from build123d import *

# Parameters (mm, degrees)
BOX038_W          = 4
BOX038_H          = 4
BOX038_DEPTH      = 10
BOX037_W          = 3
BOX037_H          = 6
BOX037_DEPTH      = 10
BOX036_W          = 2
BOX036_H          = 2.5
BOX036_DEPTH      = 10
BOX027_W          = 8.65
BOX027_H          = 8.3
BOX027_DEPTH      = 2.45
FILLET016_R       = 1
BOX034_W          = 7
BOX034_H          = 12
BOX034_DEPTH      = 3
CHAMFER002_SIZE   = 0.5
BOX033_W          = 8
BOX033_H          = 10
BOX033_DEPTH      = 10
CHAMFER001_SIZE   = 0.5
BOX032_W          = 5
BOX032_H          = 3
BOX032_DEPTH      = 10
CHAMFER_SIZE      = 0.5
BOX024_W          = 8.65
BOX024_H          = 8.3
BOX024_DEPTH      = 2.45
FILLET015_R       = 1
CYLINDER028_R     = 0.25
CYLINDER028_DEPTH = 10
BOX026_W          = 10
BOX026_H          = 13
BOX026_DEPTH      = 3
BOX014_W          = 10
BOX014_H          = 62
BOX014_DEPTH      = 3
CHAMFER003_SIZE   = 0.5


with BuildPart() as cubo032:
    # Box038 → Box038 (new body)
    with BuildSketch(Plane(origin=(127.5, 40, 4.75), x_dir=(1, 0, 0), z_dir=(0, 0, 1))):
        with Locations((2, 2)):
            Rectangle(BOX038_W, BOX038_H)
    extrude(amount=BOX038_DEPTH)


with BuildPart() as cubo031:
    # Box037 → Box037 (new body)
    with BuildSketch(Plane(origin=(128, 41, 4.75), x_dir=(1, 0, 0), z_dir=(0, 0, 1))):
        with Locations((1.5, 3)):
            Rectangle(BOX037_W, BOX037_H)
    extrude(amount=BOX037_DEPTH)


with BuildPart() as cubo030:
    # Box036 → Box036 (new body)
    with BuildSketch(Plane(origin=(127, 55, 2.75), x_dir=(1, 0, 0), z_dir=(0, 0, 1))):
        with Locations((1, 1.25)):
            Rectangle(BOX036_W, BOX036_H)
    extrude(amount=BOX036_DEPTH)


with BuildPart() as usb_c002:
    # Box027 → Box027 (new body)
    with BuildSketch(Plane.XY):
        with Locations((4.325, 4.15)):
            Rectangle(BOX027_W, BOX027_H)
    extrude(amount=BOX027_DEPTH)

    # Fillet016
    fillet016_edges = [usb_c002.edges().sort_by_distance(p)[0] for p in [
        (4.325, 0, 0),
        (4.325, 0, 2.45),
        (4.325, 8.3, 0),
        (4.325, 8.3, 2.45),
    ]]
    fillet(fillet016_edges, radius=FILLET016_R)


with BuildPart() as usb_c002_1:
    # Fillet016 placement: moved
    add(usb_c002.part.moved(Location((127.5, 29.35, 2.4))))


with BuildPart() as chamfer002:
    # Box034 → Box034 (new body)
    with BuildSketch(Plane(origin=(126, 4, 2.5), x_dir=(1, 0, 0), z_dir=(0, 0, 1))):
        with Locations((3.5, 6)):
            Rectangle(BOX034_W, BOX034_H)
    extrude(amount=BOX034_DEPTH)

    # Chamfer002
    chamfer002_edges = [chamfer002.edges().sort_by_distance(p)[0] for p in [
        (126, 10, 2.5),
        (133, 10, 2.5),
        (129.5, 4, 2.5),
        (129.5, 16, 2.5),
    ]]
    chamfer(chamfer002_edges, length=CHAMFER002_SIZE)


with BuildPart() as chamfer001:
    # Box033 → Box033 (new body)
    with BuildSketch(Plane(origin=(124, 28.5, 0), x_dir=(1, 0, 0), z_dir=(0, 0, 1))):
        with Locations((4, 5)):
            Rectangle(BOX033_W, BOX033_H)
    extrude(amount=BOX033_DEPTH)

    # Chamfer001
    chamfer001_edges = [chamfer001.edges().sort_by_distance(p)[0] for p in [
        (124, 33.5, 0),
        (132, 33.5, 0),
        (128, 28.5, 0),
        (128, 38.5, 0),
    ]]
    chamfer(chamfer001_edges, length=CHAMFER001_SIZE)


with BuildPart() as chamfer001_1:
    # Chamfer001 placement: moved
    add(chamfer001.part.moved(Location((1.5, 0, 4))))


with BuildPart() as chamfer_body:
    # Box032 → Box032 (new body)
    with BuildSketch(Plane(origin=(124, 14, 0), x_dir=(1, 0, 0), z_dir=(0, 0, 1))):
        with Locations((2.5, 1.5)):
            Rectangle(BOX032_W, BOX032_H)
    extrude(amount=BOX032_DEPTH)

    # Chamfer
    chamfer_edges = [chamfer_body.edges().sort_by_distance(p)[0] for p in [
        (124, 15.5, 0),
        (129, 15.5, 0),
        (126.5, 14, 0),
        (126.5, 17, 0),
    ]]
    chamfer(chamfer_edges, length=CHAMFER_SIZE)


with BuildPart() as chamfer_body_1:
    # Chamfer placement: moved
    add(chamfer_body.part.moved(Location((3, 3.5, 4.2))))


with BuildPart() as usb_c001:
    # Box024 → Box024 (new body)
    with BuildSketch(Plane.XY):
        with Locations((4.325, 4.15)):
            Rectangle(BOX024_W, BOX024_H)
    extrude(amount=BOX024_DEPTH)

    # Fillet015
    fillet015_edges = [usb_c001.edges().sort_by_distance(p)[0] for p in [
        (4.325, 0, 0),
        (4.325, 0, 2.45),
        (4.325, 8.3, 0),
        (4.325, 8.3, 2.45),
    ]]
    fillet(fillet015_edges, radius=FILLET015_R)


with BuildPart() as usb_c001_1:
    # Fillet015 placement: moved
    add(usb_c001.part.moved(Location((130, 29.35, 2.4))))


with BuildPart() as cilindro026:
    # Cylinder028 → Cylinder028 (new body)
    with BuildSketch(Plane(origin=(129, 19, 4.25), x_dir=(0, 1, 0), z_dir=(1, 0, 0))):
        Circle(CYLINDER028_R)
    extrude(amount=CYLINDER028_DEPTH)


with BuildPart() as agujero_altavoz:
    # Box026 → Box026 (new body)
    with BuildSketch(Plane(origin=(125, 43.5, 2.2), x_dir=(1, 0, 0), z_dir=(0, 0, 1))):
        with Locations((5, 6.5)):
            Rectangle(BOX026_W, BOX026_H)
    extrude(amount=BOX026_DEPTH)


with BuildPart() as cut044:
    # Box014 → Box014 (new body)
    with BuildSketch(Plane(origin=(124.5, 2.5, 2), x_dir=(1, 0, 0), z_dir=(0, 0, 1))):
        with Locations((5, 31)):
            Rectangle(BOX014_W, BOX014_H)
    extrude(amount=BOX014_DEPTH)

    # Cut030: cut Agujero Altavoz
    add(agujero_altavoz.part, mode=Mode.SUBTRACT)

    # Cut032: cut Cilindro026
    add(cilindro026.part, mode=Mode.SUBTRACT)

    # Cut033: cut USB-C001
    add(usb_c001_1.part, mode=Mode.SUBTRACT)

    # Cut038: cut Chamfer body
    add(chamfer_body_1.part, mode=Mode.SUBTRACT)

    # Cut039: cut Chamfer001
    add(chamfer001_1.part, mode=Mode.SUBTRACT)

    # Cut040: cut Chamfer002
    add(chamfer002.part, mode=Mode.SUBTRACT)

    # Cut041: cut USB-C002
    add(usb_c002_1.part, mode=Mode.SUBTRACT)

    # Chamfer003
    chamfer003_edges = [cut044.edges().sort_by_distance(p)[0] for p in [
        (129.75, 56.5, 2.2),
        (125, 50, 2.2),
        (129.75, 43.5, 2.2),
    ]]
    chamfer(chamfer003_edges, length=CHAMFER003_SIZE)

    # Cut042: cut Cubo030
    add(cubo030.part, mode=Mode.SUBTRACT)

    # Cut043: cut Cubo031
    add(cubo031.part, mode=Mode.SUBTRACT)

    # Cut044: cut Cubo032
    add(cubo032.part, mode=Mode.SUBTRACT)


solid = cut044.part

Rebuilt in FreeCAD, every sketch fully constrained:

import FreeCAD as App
import Part
import Sketcher

V = App.Vector


def edges_at(feature, points):
    """Names of the edges that pass closest to the given points."""
    edges = feature.Shape.Edges
    near = lambda p: min(range(len(edges)), key=lambda i: edges[i].distToShape(Part.Vertex(*p))[0])
    return sorted({f"Edge{near(p) + 1}" for p in points})

doc = App.newDocument("Part")
body = doc.addObject("PartDesign::Body", "Body")

sketch1 = body.newObject("Sketcher::SketchObject", "Sketch")
sketch1.AttachmentSupport = (doc.getObject("XY_Plane"), [""])
sketch1.MapMode = "FlatFace"
sketch1.AttachmentOffset = App.Placement(V(0, 0, 4.75), App.Rotation())
sketch1.addGeometry([
    Part.LineSegment(V(127.5, 44, 0), V(127.5, 40, 0)),
    Part.LineSegment(V(127.5, 40, 0), V(131.5, 40, 0)),
    Part.LineSegment(V(131.5, 40, 0), V(131.5, 44, 0)),
    Part.LineSegment(V(131.5, 44, 0), V(127.5, 44, 0)),
], False)
sketch1.addConstraint([
    Sketcher.Constraint("Coincident", 0, 2, 1, 1),
    Sketcher.Constraint("Coincident", 1, 2, 2, 1),
    Sketcher.Constraint("Coincident", 2, 2, 3, 1),
    Sketcher.Constraint("Coincident", 3, 2, 0, 1),
    Sketcher.Constraint("Vertical", 0),
    Sketcher.Constraint("Horizontal", 1),
    Sketcher.Constraint("Vertical", 2),
    Sketcher.Constraint("Horizontal", 3),
    Sketcher.Constraint("Equal", 3, 0),
    Sketcher.Constraint("DistanceX", 1, 1, 1, 2, 4.0),
    Sketcher.Constraint("DistanceY", -1, 1, 0, 2, 40.0),
    Sketcher.Constraint("DistanceX", -1, 1, 0, 2, 127.5),
])
pad1 = body.newObject("PartDesign::Pad", "Pad")
pad1.Profile = sketch1
pad1.Length = 10
body2 = doc.addObject("PartDesign::Body", "Body001")

sketch2 = body2.newObject("Sketcher::SketchObject", "Sketch001")
sketch2.AttachmentSupport = (doc.getObject("XY_Plane001"), [""])
sketch2.MapMode = "FlatFace"
sketch2.AttachmentOffset = App.Placement(V(0, 0, 4.75), App.Rotation())
sketch2.addGeometry([
    Part.LineSegment(V(128, 47, 0), V(128, 41, 0)),
    Part.LineSegment(V(128, 41, 0), V(131, 41, 0)),
    Part.LineSegment(V(131, 41, 0), V(131, 47, 0)),
    Part.LineSegment(V(131, 47, 0), V(128, 47, 0)),
], False)
sketch2.addConstraint([
    Sketcher.Constraint("Coincident", 0, 2, 1, 1),
    Sketcher.Constraint("Coincident", 1, 2, 2, 1),
    Sketcher.Constraint("Coincident", 2, 2, 3, 1),
    Sketcher.Constraint("Coincident", 3, 2, 0, 1),
    Sketcher.Constraint("Vertical", 0),
    Sketcher.Constraint("Horizontal", 1),
    Sketcher.Constraint("Vertical", 2),
    Sketcher.Constraint("Horizontal", 3),
    Sketcher.Constraint("DistanceX", 1, 1, 1, 2, 3.0),
    Sketcher.Constraint("DistanceY", 0, 2, 0, 1, 6.0),
    Sketcher.Constraint("DistanceX", -1, 1, 0, 2, 128.0),
    Sketcher.Constraint("DistanceY", -1, 1, 0, 2, 41.0),
])
pad2 = body2.newObject("PartDesign::Pad", "Pad001")
pad2.Profile = sketch2
pad2.Length = 10
body3 = doc.addObject("PartDesign::Body", "Body002")

sketch3 = body3.newObject("Sketcher::SketchObject", "Sketch002")
sketch3.AttachmentSupport = (doc.getObject("XY_Plane002"), [""])
sketch3.MapMode = "FlatFace"
sketch3.AttachmentOffset = App.Placement(V(0, 0, 2.75), App.Rotation())
sketch3.addGeometry([
    Part.LineSegment(V(127, 57.5, 0), V(127, 55, 0)),
    Part.LineSegment(V(127, 55, 0), V(129, 55, 0)),
    Part.LineSegment(V(129, 55, 0), V(129, 57.5, 0)),
    Part.LineSegment(V(129, 57.5, 0), V(127, 57.5, 0)),
], False)
sketch3.addConstraint([
    Sketcher.Constraint("Coincident", 0, 2, 1, 1),
    Sketcher.Constraint("Coincident", 1, 2, 2, 1),
    Sketcher.Constraint("Coincident", 2, 2, 3, 1),
    Sketcher.Constraint("Coincident", 3, 2, 0, 1),
    Sketcher.Constraint("Vertical", 0),
    Sketcher.Constraint("Horizontal", 1),
    Sketcher.Constraint("Vertical", 2),
    Sketcher.Constraint("Horizontal", 3),
    Sketcher.Constraint("DistanceX", 1, 1, 1, 2, 2.0),
    Sketcher.Constraint("DistanceY", 0, 2, 0, 1, 2.5),
    Sketcher.Constraint("DistanceX", -1, 1, 0, 2, 127.0),
    Sketcher.Constraint("DistanceY", -1, 1, 0, 2, 55.0),
])
pad3 = body3.newObject("PartDesign::Pad", "Pad002")
pad3.Profile = sketch3
pad3.Length = 10
body4 = doc.addObject("PartDesign::Body", "Body003")

sketch4 = body4.newObject("Sketcher::SketchObject", "Sketch003")
sketch4.AttachmentSupport = (doc.getObject("XY_Plane003"), [""])
sketch4.MapMode = "FlatFace"
sketch4.addGeometry([
    Part.LineSegment(V(0, 8, 0), V(0, 0, 0)),
    Part.LineSegment(V(0, 0, 0), V(9, 0, 0)),
    Part.LineSegment(V(9, 0, 0), V(9, 8, 0)),
    Part.LineSegment(V(9, 8, 0), V(0, 8, 0)),
], False)
sketch4.addConstraint([
    Sketcher.Constraint("Coincident", 0, 2, 1, 1),
    Sketcher.Constraint("Coincident", 1, 2, 2, 1),
    Sketcher.Constraint("Coincident", 2, 2, 3, 1),
    Sketcher.Constraint("Coincident", 3, 2, 0, 1),
    Sketcher.Constraint("Vertical", 0),
    Sketcher.Constraint("Horizontal", 1),
    Sketcher.Constraint("Vertical", 2),
    Sketcher.Constraint("Horizontal", 3),
    Sketcher.Constraint("Coincident", 0, 2, -1, 1),
    Sketcher.Constraint("DistanceY", 0, 2, 0, 1, 8.3),
    Sketcher.Constraint("DistanceX", 1, 1, 1, 2, 8.65),
])
pad4 = body4.newObject("PartDesign::Pad", "Pad003")
pad4.Profile = sketch4
pad4.Length = 2.45
doc.recompute()

fillet = body4.newObject("PartDesign::Fillet", "Fillet")
fillet.Base = (pad4, edges_at(pad4, [
    (4.325, 0, 0),
    (4.325, 0, 2.45),
    (4.325, 8.3, 0),
    (4.325, 8.3, 2.45),
]))
fillet.Radius = 1
body5 = doc.addObject("PartDesign::Body", "Body004")
doc.recompute()

body4.Placement = App.Placement(V(127.5, 29.35, 2.4), App.Rotation(V(0, 0, 1), 0))
boolean = body5.newObject("PartDesign::Boolean", "Boolean")
boolean.Type = "Fuse"
boolean.addObjects([body4])
body6 = doc.addObject("PartDesign::Body", "Body005")

sketch5 = body6.newObject("Sketcher::SketchObject", "Sketch004")
sketch5.AttachmentSupport = (doc.getObject("XY_Plane005"), [""])
sketch5.MapMode = "FlatFace"
sketch5.AttachmentOffset = App.Placement(V(0, 0, 2.5), App.Rotation())
sketch5.addGeometry([
    Part.LineSegment(V(126, 16, 0), V(126, 4, 0)),
    Part.LineSegment(V(126, 4, 0), V(133, 4, 0)),
    Part.LineSegment(V(133, 4, 0), V(133, 16, 0)),
    Part.LineSegment(V(133, 16, 0), V(126, 16, 0)),
], False)
sketch5.addConstraint([
    Sketcher.Constraint("Coincident", 0, 2, 1, 1),
    Sketcher.Constraint("Coincident", 1, 2, 2, 1),
    Sketcher.Constraint("Coincident", 2, 2, 3, 1),
    Sketcher.Constraint("Coincident", 3, 2, 0, 1),
    Sketcher.Constraint("Vertical", 0),
    Sketcher.Constraint("Horizontal", 1),
    Sketcher.Constraint("Vertical", 2),
    Sketcher.Constraint("Horizontal", 3),
    Sketcher.Constraint("DistanceX", 1, 1, 1, 2, 7.0),
    Sketcher.Constraint("DistanceY", 0, 2, 0, 1, 12.0),
    Sketcher.Constraint("DistanceX", -1, 1, 0, 2, 126.0),
    Sketcher.Constraint("DistanceY", -1, 1, 0, 2, 4.0),
])
pad5 = body6.newObject("PartDesign::Pad", "Pad004")
pad5.Profile = sketch5
pad5.Length = 3
doc.recompute()

chamfer = body6.newObject("PartDesign::Chamfer", "Chamfer")
chamfer.Base = (pad5, edges_at(pad5, [
    (126, 10, 2.5),
    (133, 10, 2.5),
    (129.5, 4, 2.5),
    (129.5, 16, 2.5),
]))
chamfer.Size = 0.5
body7 = doc.addObject("PartDesign::Body", "Body006")

sketch6 = body7.newObject("Sketcher::SketchObject", "Sketch005")
sketch6.AttachmentSupport = (doc.getObject("XY_Plane006"), [""])
sketch6.MapMode = "FlatFace"
sketch6.addGeometry([
    Part.LineSegment(V(124, 38, 0), V(124, 28, 0)),
    Part.LineSegment(V(124, 28, 0), V(132, 28, 0)),
    Part.LineSegment(V(132, 28, 0), V(132, 38, 0)),
    Part.LineSegment(V(132, 38, 0), V(124, 38, 0)),
], False)
sketch6.addConstraint([
    Sketcher.Constraint("Coincident", 0, 2, 1, 1),
    Sketcher.Constraint("Coincident", 1, 2, 2, 1),
    Sketcher.Constraint("Coincident", 2, 2, 3, 1),
    Sketcher.Constraint("Coincident", 3, 2, 0, 1),
    Sketcher.Constraint("Vertical", 0),
    Sketcher.Constraint("Horizontal", 1),
    Sketcher.Constraint("Vertical", 2),
    Sketcher.Constraint("Horizontal", 3),
    Sketcher.Constraint("DistanceX", 1, 1, 1, 2, 8.0),
    Sketcher.Constraint("DistanceY", 0, 2, 0, 1, 10.0),
    Sketcher.Constraint("DistanceX", -1, 1, 0, 2, 124.0),
    Sketcher.Constraint("DistanceY", -1, 1, 0, 2, 28.5),
])
pad6 = body7.newObject("PartDesign::Pad", "Pad005")
pad6.Profile = sketch6
pad6.Length = 10
doc.recompute()

chamfer2 = body7.newObject("PartDesign::Chamfer", "Chamfer001")
chamfer2.Base = (pad6, edges_at(pad6, [
    (124, 33.5, 0),
    (132, 33.5, 0),
    (128, 28.5, 0),
    (128, 38.5, 0),
]))
chamfer2.Size = 0.5
body8 = doc.addObject("PartDesign::Body", "Body007")
doc.recompute()

body7.Placement = App.Placement(V(1.5, 0, 4), App.Rotation(V(0, 0, 1), 0))
boolean2 = body8.newObject("PartDesign::Boolean", "Boolean001")
boolean2.Type = "Fuse"
boolean2.addObjects([body7])
body9 = doc.addObject("PartDesign::Body", "Body008")

sketch7 = body9.newObject("Sketcher::SketchObject", "Sketch006")
sketch7.AttachmentSupport = (doc.getObject("XY_Plane008"), [""])
sketch7.MapMode = "FlatFace"
sketch7.addGeometry([
    Part.LineSegment(V(124, 17, 0), V(124, 14, 0)),
    Part.LineSegment(V(124, 14, 0), V(129, 14, 0)),
    Part.LineSegment(V(129, 14, 0), V(129, 17, 0)),
    Part.LineSegment(V(129, 17, 0), V(124, 17, 0)),
], False)
sketch7.addConstraint([
    Sketcher.Constraint("Coincident", 0, 2, 1, 1),
    Sketcher.Constraint("Coincident", 1, 2, 2, 1),
    Sketcher.Constraint("Coincident", 2, 2, 3, 1),
    Sketcher.Constraint("Coincident", 3, 2, 0, 1),
    Sketcher.Constraint("Vertical", 0),
    Sketcher.Constraint("Horizontal", 1),
    Sketcher.Constraint("Vertical", 2),
    Sketcher.Constraint("Horizontal", 3),
    Sketcher.Constraint("DistanceX", 1, 1, 1, 2, 5.0),
    Sketcher.Constraint("DistanceY", 0, 2, 0, 1, 3.0),
    Sketcher.Constraint("DistanceX", -1, 1, 0, 2, 124.0),
    Sketcher.Constraint("DistanceY", -1, 1, 0, 2, 14.0),
])
pad7 = body9.newObject("PartDesign::Pad", "Pad006")
pad7.Profile = sketch7
pad7.Length = 10
doc.recompute()

chamfer3 = body9.newObject("PartDesign::Chamfer", "Chamfer002")
chamfer3.Base = (pad7, edges_at(pad7, [
    (124, 15.5, 0),
    (129, 15.5, 0),
    (126.5, 14, 0),
    (126.5, 17, 0),
]))
chamfer3.Size = 0.5
body10 = doc.addObject("PartDesign::Body", "Body009")
doc.recompute()

body9.Placement = App.Placement(V(3, 3.5, 4.2), App.Rotation(V(0, 0, 1), 0))
boolean3 = body10.newObject("PartDesign::Boolean", "Boolean002")
boolean3.Type = "Fuse"
boolean3.addObjects([body9])
body11 = doc.addObject("PartDesign::Body", "Body010")

sketch8 = body11.newObject("Sketcher::SketchObject", "Sketch007")
sketch8.AttachmentSupport = (doc.getObject("XY_Plane010"), [""])
sketch8.MapMode = "FlatFace"
sketch8.addGeometry([
    Part.LineSegment(V(0, 8, 0), V(0, 0, 0)),
    Part.LineSegment(V(0, 0, 0), V(9, 0, 0)),
    Part.LineSegment(V(9, 0, 0), V(9, 8, 0)),
    Part.LineSegment(V(9, 8, 0), V(0, 8, 0)),
], False)
sketch8.addConstraint([
    Sketcher.Constraint("Coincident", 0, 2, 1, 1),
    Sketcher.Constraint("Coincident", 1, 2, 2, 1),
    Sketcher.Constraint("Coincident", 2, 2, 3, 1),
    Sketcher.Constraint("Coincident", 3, 2, 0, 1),
    Sketcher.Constraint("Vertical", 0),
    Sketcher.Constraint("Horizontal", 1),
    Sketcher.Constraint("Vertical", 2),
    Sketcher.Constraint("Horizontal", 3),
    Sketcher.Constraint("Coincident", 0, 2, -1, 1),
    Sketcher.Constraint("DistanceY", 0, 2, 0, 1, 8.3),
    Sketcher.Constraint("DistanceX", 1, 1, 1, 2, 8.65),
])
pad8 = body11.newObject("PartDesign::Pad", "Pad007")
pad8.Profile = sketch8
pad8.Length = 2.45
doc.recompute()

fillet2 = body11.newObject("PartDesign::Fillet", "Fillet001")
fillet2.Base = (pad8, edges_at(pad8, [
    (4.325, 0, 0),
    (4.325, 0, 2.45),
    (4.325, 8.3, 0),
    (4.325, 8.3, 2.45),
]))
fillet2.Radius = 1
body12 = doc.addObject("PartDesign::Body", "Body011")
doc.recompute()

body11.Placement = App.Placement(V(130, 29.35, 2.4), App.Rotation(V(0, 0, 1), 0))
boolean4 = body12.newObject("PartDesign::Boolean", "Boolean003")
boolean4.Type = "Fuse"
boolean4.addObjects([body11])
body13 = doc.addObject("PartDesign::Body", "Body012")

sketch9 = body13.newObject("Sketcher::SketchObject", "Sketch008")
sketch9.AttachmentSupport = (doc.getObject("YZ_Plane012"), [""])
sketch9.MapMode = "FlatFace"
sketch9.AttachmentOffset = App.Placement(V(0, 0, 129), App.Rotation())
sketch9.addGeometry(Part.Circle(V(19, 4.25, 0), V(0, 0, 1), 0.25), False)
sketch9.addConstraint([
    Sketcher.Constraint("Diameter", 0, 0.5),
    Sketcher.Constraint("DistanceX", -1, 1, 0, 3, 19.0),
    Sketcher.Constraint("DistanceY", -1, 1, 0, 3, 4.25),
])
pad9 = body13.newObject("PartDesign::Pad", "Pad008")
pad9.Profile = sketch9
pad9.Length = 10
body14 = doc.addObject("PartDesign::Body", "Body013")

sketch10 = body14.newObject("Sketcher::SketchObject", "Sketch009")
sketch10.AttachmentSupport = (doc.getObject("XY_Plane013"), [""])
sketch10.MapMode = "FlatFace"
sketch10.AttachmentOffset = App.Placement(V(0, 0, 2.2), App.Rotation())
sketch10.addGeometry([
    Part.LineSegment(V(125, 56, 0), V(125, 44, 0)),
    Part.LineSegment(V(125, 44, 0), V(135, 44, 0)),
    Part.LineSegment(V(135, 44, 0), V(135, 56, 0)),
    Part.LineSegment(V(135, 56, 0), V(125, 56, 0)),
], False)
sketch10.addConstraint([
    Sketcher.Constraint("Coincident", 0, 2, 1, 1),
    Sketcher.Constraint("Coincident", 1, 2, 2, 1),
    Sketcher.Constraint("Coincident", 2, 2, 3, 1),
    Sketcher.Constraint("Coincident", 3, 2, 0, 1),
    Sketcher.Constraint("Vertical", 0),
    Sketcher.Constraint("Horizontal", 1),
    Sketcher.Constraint("Vertical", 2),
    Sketcher.Constraint("Horizontal", 3),
    Sketcher.Constraint("DistanceX", 1, 1, 1, 2, 10.0),
    Sketcher.Constraint("DistanceY", 0, 2, 0, 1, 13.0),
    Sketcher.Constraint("DistanceX", -1, 1, 0, 2, 125.0),
    Sketcher.Constraint("DistanceY", -1, 1, 0, 2, 43.5),
])
pad10 = body14.newObject("PartDesign::Pad", "Pad009")
pad10.Profile = sketch10
pad10.Length = 3
body15 = doc.addObject("PartDesign::Body", "Body014")

sketch11 = body15.newObject("Sketcher::SketchObject", "Sketch010")
sketch11.AttachmentSupport = (doc.getObject("XY_Plane014"), [""])
sketch11.MapMode = "FlatFace"
sketch11.AttachmentOffset = App.Placement(V(0, 0, 2), App.Rotation())
sketch11.addGeometry([
    Part.LineSegment(V(124, 64, 0), V(124, 2, 0)),
    Part.LineSegment(V(124, 2, 0), V(134, 2, 0)),
    Part.LineSegment(V(134, 2, 0), V(134, 64, 0)),
    Part.LineSegment(V(134, 64, 0), V(124, 64, 0)),
], False)
sketch11.addConstraint([
    Sketcher.Constraint("Coincident", 0, 2, 1, 1),
    Sketcher.Constraint("Coincident", 1, 2, 2, 1),
    Sketcher.Constraint("Coincident", 2, 2, 3, 1),
    Sketcher.Constraint("Coincident", 3, 2, 0, 1),
    Sketcher.Constraint("Vertical", 0),
    Sketcher.Constraint("Horizontal", 1),
    Sketcher.Constraint("Vertical", 2),
    Sketcher.Constraint("Horizontal", 3),
    Sketcher.Constraint("DistanceX", 1, 1, 1, 2, 10.0),
    Sketcher.Constraint("DistanceY", 0, 2, 0, 1, 62.0),
    Sketcher.Constraint("DistanceX", -1, 1, 0, 2, 124.5),
    Sketcher.Constraint("DistanceY", -1, 1, 0, 2, 2.5),
])
pad11 = body15.newObject("PartDesign::Pad", "Pad010")
pad11.Profile = sketch11
pad11.Length = 3
doc.recompute()

boolean5 = body15.newObject("PartDesign::Boolean", "Boolean004")
boolean5.Type = "Cut"
boolean5.addObjects([body14])
doc.recompute()

boolean6 = body15.newObject("PartDesign::Boolean", "Boolean005")
boolean6.Type = "Cut"
boolean6.addObjects([body13])
doc.recompute()

boolean7 = body15.newObject("PartDesign::Boolean", "Boolean006")
boolean7.Type = "Cut"
boolean7.addObjects([body12])
doc.recompute()

boolean8 = body15.newObject("PartDesign::Boolean", "Boolean007")
boolean8.Type = "Cut"
boolean8.addObjects([body10])
doc.recompute()

boolean9 = body15.newObject("PartDesign::Boolean", "Boolean008")
boolean9.Type = "Cut"
boolean9.addObjects([body8])
doc.recompute()

boolean10 = body15.newObject("PartDesign::Boolean", "Boolean009")
boolean10.Type = "Cut"
boolean10.addObjects([body6])
doc.recompute()

boolean11 = body15.newObject("PartDesign::Boolean", "Boolean010")
boolean11.Type = "Cut"
boolean11.addObjects([body5])
doc.recompute()

chamfer4 = body15.newObject("PartDesign::Chamfer", "Chamfer003")
chamfer4.Base = (boolean11, edges_at(boolean11, [(129.75, 56.5, 2.2), (125, 50, 2.2), (129.75, 43.5, 2.2)]))
chamfer4.Size = 0.5
doc.recompute()

boolean12 = body15.newObject("PartDesign::Boolean", "Boolean011")
boolean12.Type = "Cut"
boolean12.addObjects([body3])
doc.recompute()

boolean13 = body15.newObject("PartDesign::Boolean", "Boolean012")
boolean13.Type = "Cut"
boolean13.addObjects([body2])
doc.recompute()

boolean14 = body15.newObject("PartDesign::Boolean", "Boolean013")
boolean14.Type = "Cut"
boolean14.addObjects([body])

doc.recompute()
